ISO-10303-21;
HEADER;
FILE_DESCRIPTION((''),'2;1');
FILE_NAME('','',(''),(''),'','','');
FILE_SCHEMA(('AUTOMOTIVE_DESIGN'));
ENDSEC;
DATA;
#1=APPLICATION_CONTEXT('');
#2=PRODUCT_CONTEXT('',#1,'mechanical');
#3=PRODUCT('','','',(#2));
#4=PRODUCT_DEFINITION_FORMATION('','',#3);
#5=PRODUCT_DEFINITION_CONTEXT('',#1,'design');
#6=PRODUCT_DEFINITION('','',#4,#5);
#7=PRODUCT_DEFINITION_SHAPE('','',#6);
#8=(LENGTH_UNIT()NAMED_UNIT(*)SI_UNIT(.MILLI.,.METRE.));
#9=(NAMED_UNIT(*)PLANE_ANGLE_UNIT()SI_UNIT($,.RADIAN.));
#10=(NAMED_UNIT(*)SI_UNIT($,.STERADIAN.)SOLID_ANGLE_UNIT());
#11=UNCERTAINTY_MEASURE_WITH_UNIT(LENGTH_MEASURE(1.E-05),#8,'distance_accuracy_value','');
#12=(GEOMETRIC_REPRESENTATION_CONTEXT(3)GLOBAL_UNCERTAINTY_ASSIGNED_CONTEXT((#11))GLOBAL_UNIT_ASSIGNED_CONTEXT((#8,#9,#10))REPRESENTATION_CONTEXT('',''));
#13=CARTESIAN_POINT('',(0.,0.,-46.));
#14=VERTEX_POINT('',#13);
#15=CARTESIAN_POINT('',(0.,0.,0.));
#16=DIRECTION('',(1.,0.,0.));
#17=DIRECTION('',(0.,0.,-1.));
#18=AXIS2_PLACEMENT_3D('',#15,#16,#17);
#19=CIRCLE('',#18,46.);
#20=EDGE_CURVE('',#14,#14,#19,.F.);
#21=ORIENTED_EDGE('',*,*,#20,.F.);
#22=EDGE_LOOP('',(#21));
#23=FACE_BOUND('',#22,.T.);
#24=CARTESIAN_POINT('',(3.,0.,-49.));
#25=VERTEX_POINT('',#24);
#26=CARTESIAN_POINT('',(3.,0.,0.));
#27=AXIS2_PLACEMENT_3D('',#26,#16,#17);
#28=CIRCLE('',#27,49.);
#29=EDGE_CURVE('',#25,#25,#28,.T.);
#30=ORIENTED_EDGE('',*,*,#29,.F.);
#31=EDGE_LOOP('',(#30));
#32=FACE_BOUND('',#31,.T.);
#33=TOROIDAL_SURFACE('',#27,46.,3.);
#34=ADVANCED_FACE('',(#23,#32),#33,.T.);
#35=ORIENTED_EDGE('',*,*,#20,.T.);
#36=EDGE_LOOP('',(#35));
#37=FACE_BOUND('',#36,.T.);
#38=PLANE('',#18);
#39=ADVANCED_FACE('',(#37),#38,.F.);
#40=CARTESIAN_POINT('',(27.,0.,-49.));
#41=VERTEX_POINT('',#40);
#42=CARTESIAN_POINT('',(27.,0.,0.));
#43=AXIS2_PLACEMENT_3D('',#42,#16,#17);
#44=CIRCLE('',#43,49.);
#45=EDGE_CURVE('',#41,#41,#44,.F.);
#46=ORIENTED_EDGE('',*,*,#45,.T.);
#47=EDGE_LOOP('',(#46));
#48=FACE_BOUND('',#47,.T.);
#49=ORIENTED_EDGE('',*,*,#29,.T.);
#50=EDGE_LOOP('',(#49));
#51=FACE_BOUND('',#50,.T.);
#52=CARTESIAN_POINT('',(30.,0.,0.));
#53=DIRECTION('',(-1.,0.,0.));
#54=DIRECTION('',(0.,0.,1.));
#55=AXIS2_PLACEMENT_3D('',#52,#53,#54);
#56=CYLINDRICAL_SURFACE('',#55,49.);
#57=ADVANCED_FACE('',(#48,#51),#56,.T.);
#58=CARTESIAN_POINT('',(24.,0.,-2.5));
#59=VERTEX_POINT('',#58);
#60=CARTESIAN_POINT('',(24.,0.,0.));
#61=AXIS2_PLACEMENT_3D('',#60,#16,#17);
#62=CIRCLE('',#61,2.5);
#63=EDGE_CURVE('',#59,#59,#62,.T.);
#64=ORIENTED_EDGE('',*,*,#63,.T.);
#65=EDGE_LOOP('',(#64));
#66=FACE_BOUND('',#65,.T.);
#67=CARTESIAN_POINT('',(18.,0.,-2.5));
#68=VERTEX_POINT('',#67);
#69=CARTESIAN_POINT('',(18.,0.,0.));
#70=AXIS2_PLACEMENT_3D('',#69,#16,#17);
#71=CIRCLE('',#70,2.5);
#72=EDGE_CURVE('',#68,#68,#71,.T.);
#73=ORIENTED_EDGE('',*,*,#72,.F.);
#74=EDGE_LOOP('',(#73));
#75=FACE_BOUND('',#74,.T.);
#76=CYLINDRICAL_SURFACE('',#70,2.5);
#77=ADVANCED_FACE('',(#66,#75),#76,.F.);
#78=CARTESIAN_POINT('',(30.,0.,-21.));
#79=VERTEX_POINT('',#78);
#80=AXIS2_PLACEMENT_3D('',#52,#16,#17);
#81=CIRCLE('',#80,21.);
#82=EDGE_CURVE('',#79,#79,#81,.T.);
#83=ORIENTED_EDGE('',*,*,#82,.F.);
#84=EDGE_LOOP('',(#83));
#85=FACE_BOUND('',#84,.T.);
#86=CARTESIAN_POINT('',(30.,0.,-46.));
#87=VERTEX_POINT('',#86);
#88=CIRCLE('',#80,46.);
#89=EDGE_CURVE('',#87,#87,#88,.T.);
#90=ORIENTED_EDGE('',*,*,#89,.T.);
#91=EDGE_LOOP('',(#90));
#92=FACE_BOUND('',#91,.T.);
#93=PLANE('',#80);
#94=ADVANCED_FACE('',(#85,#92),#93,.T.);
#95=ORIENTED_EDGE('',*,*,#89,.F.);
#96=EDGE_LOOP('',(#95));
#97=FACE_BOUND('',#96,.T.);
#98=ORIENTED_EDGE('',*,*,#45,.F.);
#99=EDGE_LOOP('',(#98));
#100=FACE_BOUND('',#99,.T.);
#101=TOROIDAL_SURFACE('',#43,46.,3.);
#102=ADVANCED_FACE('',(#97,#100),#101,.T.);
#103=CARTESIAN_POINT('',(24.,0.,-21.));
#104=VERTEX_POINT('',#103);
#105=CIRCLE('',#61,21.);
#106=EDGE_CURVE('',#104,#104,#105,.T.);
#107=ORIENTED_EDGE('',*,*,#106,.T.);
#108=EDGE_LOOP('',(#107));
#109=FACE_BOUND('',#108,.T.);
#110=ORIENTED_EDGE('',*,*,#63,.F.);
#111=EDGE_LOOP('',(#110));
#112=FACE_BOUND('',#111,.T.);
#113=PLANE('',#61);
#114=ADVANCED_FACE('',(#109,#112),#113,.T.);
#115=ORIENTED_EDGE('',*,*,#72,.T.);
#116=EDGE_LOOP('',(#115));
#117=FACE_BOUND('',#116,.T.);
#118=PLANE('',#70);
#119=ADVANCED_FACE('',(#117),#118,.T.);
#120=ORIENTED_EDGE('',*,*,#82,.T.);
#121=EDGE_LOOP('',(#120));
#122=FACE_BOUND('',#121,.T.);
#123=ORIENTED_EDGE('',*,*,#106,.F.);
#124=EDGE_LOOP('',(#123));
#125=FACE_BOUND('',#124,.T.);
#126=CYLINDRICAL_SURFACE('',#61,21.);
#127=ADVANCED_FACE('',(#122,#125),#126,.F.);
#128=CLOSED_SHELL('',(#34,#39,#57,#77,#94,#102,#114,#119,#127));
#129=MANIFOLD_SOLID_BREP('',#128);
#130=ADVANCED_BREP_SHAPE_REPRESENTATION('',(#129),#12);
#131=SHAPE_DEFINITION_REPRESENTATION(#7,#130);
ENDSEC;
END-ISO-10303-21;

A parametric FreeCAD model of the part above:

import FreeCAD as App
import Part
import Sketcher

V = App.Vector
Q = App.Units.Quantity


def edges_at(feature, points):
    """Names of the edges that pass closest to the given points."""
    edges = feature.Shape.Edges
    near = lambda p: min(range(len(edges)), key=lambda i: edges[i].distToShape(Part.Vertex(*p))[0])
    return sorted({f"Edge{near(p) + 1}" for p in points})

doc = App.newDocument("Part")
body = doc.addObject("PartDesign::Body", "Body")

sketch1 = body.newObject("Sketcher::SketchObject", "Sketch")
sketch1.AttachmentSupport = (doc.getObject("YZ_Plane"), [""])
sketch1.MapMode = "FlatFace"
sketch1.addGeometry(Part.Circle(V(0, 0, 0), V(0, 0, 1), 49), False)
sketch1.addConstraint([
    Sketcher.Constraint("Coincident", 0, 3, -1, 1),
    Sketcher.Constraint("Diameter", 0, Q("98 mm")),
])
pad1 = body.newObject("PartDesign::Pad", "Pad")
pad1.Profile = sketch1
pad1.Length = 30
doc.recompute()

fillet = body.newObject("PartDesign::Fillet", "Fillet")
fillet.Base = (pad1, edges_at(pad1, [(0, 0, 49), (30, 0, 49)]))
fillet.Radius = 3

sketch2 = body.newObject("Sketcher::SketchObject", "Sketch001")
sketch2.AttachmentSupport = (doc.getObject("YZ_Plane"), [""])
sketch2.MapMode = "FlatFace"
sketch2.AttachmentOffset = App.Placement(V(0, 0, 30), App.Rotation())
sketch2.addGeometry(Part.Circle(V(0, 0, 0), V(0, 0, 1), 21), False)
sketch2.addConstraint([
    Sketcher.Constraint("Coincident", 0, 3, -1, 1),
    Sketcher.Constraint("Diameter", 0, Q("42 mm")),
])
pocket1 = body.newObject("PartDesign::Pocket", "Pocket")
pocket1.Profile = sketch2
pocket1.Length = 6

sketch3 = body.newObject("Sketcher::SketchObject", "Sketch002")
sketch3.AttachmentSupport = (doc.getObject("YZ_Plane"), [""])
sketch3.MapMode = "FlatFace"
sketch3.AttachmentOffset = App.Placement(V(0, 0, 24), App.Rotation())
sketch3.addGeometry(Part.Circle(V(0, 0, 0), V(0, 0, 1), 2.5), False)
sketch3.addConstraint([
    Sketcher.Constraint("Coincident", 0, 3, -1, 1),
    Sketcher.Constraint("Diameter", 0, Q("5 mm")),
])
pocket2 = body.newObject("PartDesign::Pocket", "Pocket001")
pocket2.Profile = sketch3
pocket2.Length = 6

doc.recompute()
